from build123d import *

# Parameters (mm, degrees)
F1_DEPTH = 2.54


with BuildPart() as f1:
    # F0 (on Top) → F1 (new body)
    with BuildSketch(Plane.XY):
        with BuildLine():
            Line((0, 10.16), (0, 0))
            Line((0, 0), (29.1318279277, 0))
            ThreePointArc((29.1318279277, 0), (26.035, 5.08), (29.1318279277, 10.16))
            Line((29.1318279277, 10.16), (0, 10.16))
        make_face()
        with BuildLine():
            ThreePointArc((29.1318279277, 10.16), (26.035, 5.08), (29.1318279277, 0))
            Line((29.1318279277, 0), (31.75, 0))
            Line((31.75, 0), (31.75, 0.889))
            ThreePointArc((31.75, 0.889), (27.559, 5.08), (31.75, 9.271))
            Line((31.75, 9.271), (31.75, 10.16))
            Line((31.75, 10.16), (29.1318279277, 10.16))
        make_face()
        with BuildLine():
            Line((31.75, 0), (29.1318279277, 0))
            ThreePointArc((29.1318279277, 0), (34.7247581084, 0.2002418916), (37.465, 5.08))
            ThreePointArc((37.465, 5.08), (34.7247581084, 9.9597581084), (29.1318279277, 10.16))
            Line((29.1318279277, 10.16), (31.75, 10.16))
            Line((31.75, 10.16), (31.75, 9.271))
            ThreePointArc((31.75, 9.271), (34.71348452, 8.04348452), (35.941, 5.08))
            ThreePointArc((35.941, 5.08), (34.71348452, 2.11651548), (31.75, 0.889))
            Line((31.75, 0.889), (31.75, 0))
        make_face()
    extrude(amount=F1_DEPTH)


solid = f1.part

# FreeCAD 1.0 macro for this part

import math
import FreeCAD as App
import Part
import Sketcher
from FreeCAD import Vector
Q = App.Units.Quantity

doc = App.newDocument("Part")
body = doc.addObject("PartDesign::Body", "Body")

sketch1 = doc.addObject("Sketcher::SketchObject", "Sketch")
body.addObject(sketch1)
sketch1.AttachmentSupport = (doc.XY_Plane, [""])
sketch1.MapMode = "FlatFace"
sketch1.addGeometry([
    Part.LineSegment(Vector(0, 10.2, 0), Vector(0, 0, 0)),
    Part.LineSegment(Vector(0, 0, 0), Vector(29.1, 0, 0)),
    Part.ArcOfCircle(Part.Circle(Vector(31.8, 5.1, 0), Vector(0, 0, 1), 5.7), math.radians(-117), math.radians(0)),
    Part.ArcOfCircle(Part.Circle(Vector(31.8, 5.1, 0), Vector(0, 0, 1), 5.7), math.radians(0), math.radians(117)),
    Part.LineSegment(Vector(29.1, 10.2, 0), Vector(0, 10.2, 0)),
    Part.ArcOfCircle(Part.Circle(Vector(31.8, 5.1, 0), Vector(0, 0, 1), 4.2), math.radians(90), math.radians(270)),
    Part.ArcOfCircle(Part.Circle(Vector(31.8, 5.1, 0), Vector(0, 0, 1), 4.2), math.radians(0), math.radians(90)),
    Part.ArcOfCircle(Part.Circle(Vector(31.8, 5.1, 0), Vector(0, 0, 1), 4.2), math.radians(-90), math.radians(0)),
], False)
sketch1.addConstraint([
    Sketcher.Constraint("Coincident", 0, 2, 1, 1),
    Sketcher.Constraint("Coincident", 1, 2, 2, 1),
    Sketcher.Constraint("Tangent", 2, 2, 3, 1),
    Sketcher.Constraint("Coincident", 3, 2, 4, 1),
    Sketcher.Constraint("Coincident", 4, 2, 0, 1),
    Sketcher.Constraint("Tangent", 5, 1, 6, 2),
    Sketcher.Constraint("Tangent", 6, 1, 7, 2),
    Sketcher.Constraint("Tangent", 7, 1, 5, 2),
    Sketcher.Constraint("Vertical", 0),
    Sketcher.Constraint("Horizontal", 1),
    Sketcher.Constraint("Horizontal", 4),
    Sketcher.Constraint("Coincident", 0, 2, -1, 1),
    Sketcher.Constraint("Coincident", 5, 3, 2, 3),
    Sketcher.Constraint("Equal", 2, 3),
    Sketcher.Constraint("Horizontal", 7, 3, 2, 2),
    Sketcher.Constraint("Horizontal", 2, 2, 6, 1),
    Sketcher.Constraint("Vertical", 1, 2, 3, 2),
    Sketcher.Constraint("Vertical", 7, 3, 5, 1),
    Sketcher.Constraint("Vertical", 5, 1, 7, 1),
    Sketcher.Constraint("DistanceY", 0, 2, 0, 1, Q("0.4 in")),
    Sketcher.Constraint("Radius", 2, Q("0.225 in")),
    Sketcher.Constraint("Radius", 5, Q("0.165 in")),
    Sketcher.Constraint("DistanceX", -1, 1, 2, 3, Q("1.25 in")),
])
pad1 = doc.addObject("PartDesign::Pad", "Pad")
body.addObject(pad1)
pad1.Profile = sketch1
pad1.Length = Q("0.1 in")

doc.recompute()
